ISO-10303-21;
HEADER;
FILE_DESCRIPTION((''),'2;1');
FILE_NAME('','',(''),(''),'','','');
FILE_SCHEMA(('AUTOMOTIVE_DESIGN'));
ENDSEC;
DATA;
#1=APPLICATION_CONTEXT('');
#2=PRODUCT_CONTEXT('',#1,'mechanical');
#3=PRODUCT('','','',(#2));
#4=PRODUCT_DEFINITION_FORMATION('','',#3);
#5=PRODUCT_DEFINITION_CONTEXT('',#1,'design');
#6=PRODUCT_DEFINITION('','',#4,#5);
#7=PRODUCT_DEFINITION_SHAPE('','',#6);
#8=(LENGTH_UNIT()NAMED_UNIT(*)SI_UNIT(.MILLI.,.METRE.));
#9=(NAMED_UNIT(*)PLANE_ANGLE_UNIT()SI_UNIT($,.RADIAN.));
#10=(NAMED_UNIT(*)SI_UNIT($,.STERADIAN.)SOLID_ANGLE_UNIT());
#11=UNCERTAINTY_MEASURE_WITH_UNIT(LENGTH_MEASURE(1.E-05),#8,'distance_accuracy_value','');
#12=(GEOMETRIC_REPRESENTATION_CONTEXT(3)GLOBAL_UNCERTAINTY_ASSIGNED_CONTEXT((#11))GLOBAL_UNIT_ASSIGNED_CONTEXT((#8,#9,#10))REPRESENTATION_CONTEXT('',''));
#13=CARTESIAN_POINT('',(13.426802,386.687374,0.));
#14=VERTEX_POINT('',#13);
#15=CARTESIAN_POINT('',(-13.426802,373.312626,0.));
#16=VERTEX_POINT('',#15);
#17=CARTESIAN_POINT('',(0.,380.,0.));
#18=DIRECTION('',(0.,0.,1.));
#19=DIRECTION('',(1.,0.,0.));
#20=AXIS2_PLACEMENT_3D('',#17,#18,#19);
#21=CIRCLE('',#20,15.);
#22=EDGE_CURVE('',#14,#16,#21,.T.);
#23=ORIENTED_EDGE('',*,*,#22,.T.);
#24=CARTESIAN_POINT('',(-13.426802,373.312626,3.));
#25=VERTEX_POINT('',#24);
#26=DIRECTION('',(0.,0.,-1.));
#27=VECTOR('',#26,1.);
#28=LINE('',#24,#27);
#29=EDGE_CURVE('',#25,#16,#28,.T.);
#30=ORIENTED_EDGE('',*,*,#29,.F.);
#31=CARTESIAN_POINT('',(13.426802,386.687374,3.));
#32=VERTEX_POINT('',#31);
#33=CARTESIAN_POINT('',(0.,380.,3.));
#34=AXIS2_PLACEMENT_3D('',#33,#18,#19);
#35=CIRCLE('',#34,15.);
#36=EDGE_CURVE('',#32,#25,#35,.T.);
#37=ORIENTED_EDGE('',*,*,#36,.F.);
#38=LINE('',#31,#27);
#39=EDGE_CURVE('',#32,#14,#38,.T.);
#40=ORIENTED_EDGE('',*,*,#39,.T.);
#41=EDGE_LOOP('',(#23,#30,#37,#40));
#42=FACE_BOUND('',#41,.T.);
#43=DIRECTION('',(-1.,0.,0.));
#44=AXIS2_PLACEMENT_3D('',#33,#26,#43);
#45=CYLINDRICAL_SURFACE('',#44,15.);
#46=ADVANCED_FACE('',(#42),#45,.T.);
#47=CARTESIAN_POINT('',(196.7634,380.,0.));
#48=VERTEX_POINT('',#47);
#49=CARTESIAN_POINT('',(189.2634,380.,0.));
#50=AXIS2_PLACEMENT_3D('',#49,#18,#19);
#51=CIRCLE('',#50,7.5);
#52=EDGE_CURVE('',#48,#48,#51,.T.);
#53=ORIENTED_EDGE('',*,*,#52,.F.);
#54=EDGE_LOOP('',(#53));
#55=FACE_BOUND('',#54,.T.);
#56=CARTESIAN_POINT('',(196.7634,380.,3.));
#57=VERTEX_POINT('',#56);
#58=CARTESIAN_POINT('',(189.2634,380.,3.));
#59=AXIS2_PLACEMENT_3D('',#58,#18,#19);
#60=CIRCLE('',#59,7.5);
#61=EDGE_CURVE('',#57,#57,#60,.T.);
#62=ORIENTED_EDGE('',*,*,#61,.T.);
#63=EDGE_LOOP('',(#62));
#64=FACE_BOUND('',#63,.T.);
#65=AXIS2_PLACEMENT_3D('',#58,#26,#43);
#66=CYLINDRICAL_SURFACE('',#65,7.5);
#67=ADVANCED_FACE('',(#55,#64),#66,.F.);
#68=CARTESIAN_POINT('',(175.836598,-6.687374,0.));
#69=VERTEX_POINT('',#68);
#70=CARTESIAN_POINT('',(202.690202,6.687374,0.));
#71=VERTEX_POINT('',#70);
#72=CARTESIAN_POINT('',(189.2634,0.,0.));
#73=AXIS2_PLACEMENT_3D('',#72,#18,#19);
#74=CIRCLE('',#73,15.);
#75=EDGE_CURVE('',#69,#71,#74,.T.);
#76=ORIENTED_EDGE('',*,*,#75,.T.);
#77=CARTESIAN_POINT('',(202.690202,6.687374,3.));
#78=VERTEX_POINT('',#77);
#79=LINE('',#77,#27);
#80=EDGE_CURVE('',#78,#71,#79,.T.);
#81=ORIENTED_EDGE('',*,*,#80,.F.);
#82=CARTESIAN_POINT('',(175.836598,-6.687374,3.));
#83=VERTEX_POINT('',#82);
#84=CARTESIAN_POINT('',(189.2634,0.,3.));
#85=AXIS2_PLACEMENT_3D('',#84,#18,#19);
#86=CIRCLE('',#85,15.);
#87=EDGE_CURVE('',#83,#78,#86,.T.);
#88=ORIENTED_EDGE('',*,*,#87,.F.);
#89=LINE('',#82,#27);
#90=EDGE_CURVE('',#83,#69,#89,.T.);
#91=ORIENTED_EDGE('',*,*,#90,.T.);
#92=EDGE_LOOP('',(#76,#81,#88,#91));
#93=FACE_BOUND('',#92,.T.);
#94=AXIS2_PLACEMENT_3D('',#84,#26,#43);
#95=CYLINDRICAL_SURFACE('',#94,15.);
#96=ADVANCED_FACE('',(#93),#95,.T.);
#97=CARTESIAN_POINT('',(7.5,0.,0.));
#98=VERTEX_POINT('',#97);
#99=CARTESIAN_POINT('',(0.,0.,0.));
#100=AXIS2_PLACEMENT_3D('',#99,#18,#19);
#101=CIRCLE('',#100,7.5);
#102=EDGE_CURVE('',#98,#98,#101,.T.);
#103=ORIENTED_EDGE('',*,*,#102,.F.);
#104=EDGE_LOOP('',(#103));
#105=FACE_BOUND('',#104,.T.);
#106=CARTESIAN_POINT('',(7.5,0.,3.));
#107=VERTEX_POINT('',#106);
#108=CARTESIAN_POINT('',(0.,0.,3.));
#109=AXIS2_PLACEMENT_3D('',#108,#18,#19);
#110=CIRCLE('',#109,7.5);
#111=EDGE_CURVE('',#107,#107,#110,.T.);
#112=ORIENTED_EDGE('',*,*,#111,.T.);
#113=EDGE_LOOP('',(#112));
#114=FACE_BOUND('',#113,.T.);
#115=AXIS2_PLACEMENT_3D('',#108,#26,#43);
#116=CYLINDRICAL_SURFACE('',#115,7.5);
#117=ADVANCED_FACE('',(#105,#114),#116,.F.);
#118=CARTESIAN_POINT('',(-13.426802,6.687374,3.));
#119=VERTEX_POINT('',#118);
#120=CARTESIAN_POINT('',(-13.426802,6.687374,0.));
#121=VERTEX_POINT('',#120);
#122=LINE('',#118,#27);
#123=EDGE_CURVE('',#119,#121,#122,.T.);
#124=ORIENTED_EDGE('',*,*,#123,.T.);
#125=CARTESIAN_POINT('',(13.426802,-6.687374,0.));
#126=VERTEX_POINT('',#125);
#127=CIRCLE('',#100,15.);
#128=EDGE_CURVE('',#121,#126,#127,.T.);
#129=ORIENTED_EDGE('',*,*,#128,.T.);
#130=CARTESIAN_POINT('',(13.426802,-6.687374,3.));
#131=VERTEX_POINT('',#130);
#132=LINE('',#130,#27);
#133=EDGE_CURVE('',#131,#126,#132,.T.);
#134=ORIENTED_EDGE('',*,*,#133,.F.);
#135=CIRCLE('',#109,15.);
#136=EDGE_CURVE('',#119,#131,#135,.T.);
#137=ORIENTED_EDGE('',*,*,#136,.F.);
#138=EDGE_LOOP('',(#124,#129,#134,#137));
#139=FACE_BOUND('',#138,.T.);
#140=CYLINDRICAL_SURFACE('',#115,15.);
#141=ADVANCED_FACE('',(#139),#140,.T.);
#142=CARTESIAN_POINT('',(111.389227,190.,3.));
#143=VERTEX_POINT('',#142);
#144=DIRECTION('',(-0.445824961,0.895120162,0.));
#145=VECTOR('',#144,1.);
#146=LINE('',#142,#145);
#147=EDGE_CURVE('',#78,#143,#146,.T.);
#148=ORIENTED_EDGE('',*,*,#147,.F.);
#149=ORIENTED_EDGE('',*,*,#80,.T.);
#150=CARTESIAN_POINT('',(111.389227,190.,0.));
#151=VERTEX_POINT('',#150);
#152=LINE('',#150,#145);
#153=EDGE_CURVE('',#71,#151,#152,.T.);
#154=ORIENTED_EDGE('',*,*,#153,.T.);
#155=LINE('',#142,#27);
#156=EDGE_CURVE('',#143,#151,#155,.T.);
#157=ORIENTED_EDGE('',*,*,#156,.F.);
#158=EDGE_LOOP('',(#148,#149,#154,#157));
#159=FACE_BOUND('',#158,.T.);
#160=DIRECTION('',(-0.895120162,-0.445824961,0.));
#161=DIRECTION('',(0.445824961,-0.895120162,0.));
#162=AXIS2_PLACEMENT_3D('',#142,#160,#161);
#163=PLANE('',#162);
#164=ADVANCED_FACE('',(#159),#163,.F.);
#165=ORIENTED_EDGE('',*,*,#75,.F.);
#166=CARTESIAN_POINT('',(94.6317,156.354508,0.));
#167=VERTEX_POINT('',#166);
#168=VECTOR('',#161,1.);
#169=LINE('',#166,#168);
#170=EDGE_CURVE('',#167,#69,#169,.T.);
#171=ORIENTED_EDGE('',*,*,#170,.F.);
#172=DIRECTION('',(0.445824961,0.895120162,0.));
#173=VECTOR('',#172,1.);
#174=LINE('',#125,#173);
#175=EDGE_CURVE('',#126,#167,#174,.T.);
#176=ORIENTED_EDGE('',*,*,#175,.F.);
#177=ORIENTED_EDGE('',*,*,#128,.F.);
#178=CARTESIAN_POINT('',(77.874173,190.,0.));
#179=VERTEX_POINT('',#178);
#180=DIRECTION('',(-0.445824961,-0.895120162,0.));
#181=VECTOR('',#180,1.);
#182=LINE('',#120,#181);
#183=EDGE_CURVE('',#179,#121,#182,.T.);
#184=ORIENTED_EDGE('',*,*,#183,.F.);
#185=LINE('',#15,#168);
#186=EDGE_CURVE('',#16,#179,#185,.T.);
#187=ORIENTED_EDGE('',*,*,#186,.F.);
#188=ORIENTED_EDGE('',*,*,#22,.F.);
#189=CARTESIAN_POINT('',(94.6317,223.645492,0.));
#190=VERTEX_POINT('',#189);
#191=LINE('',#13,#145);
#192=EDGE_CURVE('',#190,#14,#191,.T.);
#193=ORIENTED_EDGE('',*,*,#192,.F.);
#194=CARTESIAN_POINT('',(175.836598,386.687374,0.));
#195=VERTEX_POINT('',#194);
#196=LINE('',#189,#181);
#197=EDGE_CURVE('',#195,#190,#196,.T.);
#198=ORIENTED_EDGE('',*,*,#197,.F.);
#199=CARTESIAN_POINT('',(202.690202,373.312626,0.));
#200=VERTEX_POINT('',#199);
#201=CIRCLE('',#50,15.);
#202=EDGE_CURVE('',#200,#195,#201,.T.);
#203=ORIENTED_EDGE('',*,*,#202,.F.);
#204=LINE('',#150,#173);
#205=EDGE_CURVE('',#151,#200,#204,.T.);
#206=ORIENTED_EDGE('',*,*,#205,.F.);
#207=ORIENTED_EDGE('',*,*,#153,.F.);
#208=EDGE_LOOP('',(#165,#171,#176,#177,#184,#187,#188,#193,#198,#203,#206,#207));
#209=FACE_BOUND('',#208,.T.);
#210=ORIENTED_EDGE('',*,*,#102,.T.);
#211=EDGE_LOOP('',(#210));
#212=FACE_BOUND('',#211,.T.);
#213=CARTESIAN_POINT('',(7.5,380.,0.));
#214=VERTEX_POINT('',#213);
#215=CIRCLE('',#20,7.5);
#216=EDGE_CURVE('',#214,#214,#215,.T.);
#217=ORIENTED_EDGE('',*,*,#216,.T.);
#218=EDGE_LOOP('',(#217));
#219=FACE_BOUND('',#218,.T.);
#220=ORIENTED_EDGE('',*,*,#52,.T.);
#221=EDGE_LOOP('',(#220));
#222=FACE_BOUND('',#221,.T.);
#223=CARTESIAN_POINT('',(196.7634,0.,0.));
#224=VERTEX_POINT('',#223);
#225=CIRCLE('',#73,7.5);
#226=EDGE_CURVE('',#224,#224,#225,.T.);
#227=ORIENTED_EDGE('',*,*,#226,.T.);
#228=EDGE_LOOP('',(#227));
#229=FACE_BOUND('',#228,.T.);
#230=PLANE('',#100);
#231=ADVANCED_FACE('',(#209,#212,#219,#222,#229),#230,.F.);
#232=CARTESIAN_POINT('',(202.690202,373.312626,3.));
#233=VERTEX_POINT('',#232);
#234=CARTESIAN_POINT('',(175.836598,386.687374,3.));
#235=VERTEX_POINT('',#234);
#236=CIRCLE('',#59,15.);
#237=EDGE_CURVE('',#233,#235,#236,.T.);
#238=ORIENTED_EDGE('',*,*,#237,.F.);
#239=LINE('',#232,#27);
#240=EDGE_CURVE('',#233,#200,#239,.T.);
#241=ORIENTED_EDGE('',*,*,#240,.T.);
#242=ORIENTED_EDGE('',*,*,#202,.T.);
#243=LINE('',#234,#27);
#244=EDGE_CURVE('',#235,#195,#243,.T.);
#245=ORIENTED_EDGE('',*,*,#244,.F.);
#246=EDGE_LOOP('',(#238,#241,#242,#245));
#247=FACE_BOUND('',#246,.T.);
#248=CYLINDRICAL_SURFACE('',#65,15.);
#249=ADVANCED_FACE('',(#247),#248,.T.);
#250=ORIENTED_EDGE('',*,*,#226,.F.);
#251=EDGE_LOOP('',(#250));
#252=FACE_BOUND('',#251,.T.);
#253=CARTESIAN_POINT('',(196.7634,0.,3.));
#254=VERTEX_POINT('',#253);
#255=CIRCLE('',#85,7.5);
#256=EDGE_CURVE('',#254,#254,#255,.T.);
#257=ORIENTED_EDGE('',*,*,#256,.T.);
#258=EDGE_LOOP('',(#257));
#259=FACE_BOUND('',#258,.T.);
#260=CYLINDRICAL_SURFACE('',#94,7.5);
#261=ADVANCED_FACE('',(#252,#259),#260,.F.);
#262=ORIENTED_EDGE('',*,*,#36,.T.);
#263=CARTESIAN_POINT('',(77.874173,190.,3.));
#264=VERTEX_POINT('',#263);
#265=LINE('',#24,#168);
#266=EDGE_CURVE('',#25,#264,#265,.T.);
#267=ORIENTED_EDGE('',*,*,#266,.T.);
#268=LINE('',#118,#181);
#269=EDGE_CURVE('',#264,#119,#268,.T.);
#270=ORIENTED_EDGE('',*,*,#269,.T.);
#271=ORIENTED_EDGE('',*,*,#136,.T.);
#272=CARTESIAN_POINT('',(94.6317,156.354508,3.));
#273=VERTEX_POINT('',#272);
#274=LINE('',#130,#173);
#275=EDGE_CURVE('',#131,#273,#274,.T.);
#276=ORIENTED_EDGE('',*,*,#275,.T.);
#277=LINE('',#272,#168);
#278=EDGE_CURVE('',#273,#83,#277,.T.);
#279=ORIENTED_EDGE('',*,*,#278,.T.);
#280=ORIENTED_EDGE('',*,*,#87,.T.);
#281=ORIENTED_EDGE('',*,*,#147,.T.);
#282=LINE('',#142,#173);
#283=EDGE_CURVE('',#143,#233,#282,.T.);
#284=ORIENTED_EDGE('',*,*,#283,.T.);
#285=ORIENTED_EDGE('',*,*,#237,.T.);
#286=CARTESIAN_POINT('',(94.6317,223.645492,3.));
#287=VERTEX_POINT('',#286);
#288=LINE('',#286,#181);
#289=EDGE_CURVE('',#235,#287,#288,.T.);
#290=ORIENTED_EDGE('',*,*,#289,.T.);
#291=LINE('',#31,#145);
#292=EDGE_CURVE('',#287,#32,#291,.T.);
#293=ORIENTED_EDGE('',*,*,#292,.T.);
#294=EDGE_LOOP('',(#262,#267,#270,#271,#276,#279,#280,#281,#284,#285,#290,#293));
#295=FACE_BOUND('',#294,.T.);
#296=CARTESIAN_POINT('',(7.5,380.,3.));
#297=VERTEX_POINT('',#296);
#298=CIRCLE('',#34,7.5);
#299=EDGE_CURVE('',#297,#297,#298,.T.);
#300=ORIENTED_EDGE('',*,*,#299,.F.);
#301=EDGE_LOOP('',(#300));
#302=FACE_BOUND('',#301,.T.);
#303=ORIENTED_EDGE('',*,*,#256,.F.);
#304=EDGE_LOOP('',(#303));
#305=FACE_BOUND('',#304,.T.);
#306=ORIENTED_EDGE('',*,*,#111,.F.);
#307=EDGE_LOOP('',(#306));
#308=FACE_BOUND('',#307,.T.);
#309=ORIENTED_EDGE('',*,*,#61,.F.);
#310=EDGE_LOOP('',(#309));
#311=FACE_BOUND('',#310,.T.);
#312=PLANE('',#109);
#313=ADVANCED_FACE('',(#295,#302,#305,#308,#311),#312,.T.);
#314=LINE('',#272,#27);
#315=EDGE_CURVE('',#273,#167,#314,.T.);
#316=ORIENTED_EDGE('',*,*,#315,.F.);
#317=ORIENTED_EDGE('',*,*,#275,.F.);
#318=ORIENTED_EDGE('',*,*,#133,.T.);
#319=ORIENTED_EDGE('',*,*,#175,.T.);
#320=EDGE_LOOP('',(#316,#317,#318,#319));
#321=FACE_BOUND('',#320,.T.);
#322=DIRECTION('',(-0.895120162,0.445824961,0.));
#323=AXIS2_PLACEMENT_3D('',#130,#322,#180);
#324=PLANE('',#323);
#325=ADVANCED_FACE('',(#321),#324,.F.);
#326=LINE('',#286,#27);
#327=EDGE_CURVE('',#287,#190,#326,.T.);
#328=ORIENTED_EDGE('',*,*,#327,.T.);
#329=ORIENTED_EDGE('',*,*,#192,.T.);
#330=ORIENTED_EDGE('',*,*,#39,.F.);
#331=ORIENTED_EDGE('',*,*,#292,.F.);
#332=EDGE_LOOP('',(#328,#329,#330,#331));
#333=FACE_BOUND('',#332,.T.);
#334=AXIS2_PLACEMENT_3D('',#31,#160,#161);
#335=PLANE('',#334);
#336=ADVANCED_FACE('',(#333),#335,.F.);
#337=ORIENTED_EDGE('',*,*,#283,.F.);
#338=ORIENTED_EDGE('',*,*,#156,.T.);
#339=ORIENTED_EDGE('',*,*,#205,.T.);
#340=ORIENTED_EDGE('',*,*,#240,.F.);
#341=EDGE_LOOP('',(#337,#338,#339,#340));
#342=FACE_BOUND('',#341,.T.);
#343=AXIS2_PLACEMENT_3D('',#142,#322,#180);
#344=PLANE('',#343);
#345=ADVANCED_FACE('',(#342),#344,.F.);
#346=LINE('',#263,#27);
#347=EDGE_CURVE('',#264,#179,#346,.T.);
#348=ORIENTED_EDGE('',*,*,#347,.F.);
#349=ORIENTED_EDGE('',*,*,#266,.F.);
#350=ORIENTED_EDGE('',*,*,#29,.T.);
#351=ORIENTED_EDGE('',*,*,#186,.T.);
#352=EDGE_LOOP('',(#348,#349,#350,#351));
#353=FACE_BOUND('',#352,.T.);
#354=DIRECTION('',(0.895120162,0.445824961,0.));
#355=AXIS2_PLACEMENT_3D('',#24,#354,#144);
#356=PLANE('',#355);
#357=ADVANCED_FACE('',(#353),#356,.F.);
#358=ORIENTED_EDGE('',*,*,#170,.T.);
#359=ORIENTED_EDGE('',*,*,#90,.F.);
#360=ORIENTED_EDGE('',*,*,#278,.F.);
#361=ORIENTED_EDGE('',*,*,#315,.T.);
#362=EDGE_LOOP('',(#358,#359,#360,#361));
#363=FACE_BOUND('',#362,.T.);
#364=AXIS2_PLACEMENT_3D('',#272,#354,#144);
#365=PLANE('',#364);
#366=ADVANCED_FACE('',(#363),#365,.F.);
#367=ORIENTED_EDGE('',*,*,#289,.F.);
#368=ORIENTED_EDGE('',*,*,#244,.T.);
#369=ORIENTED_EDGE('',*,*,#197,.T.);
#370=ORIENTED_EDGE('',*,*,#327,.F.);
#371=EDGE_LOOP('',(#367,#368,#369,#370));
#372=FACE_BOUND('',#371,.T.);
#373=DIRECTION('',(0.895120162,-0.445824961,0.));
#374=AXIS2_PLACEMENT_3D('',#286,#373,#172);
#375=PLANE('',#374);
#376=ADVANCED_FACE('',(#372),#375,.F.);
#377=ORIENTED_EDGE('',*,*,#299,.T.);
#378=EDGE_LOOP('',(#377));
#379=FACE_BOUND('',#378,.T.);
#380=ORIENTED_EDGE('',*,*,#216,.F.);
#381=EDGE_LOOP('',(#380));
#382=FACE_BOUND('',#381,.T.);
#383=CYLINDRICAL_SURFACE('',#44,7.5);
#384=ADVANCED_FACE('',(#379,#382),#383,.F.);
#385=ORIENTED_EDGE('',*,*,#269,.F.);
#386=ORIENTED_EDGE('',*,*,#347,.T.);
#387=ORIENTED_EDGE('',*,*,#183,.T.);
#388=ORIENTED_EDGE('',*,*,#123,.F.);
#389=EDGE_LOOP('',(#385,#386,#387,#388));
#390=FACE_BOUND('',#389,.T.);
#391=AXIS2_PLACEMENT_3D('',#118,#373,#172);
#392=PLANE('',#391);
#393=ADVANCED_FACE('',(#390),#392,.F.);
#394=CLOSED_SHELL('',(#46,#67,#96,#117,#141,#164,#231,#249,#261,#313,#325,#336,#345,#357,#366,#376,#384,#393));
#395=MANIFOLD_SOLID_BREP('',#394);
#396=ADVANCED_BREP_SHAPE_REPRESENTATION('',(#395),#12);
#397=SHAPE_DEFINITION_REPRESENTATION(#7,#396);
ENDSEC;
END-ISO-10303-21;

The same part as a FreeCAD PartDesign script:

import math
import FreeCAD as App
import Part
import Sketcher
from FreeCAD import Vector

doc = App.newDocument("Part")
params = doc.addObject("Spreadsheet::Sheet", "Params")
for row, (alias, value) in enumerate([
    ("sketch1_diameter", "15 mm"),
    ("sketch1_radius", "15 mm"),
    ("pad1_length", "3 mm"),
], start=1):
    params.set(f"A{row}", alias)
    params.set(f"B{row}", "=" + value)
    params.setAlias(f"B{row}", alias)

body = doc.addObject("PartDesign::Body", "Body")

# Sketch on XY plane
sketch1 = doc.addObject("Sketcher::SketchObject", "Sketch")
body.addObject(sketch1)
sketch1.AttachmentSupport = (doc.XY_Plane, [""])
sketch1.MapMode = "FlatFace"
sketch1.addGeometry([
    Part.LineSegment(Vector(78, 190, 0), Vector(-13, 7, 0)),  # 0
    Part.ArcOfCircle(Part.Circle(Vector(0, 0, 0), Vector(0, 0, 1), 15), math.radians(154), math.radians(334)),  # 1
    Part.LineSegment(Vector(13, -7, 0), Vector(95, 156, 0)),  # 2
    Part.LineSegment(Vector(95, 156, 0), Vector(176, -7, 0)),  # 3
    Part.ArcOfCircle(Part.Circle(Vector(189, 0, 0), Vector(0, 0, 1), 15), math.radians(-154), math.radians(26)),  # 4
    Part.LineSegment(Vector(203, 7, 0), Vector(111, 190, 0)),  # 5
    Part.LineSegment(Vector(111, 190, 0), Vector(203, 373, 0)),  # 6
    Part.ArcOfCircle(Part.Circle(Vector(189, 380, 0), Vector(0, 0, 1), 15), math.radians(-26), math.radians(154)),  # 7
    Part.LineSegment(Vector(176, 387, 0), Vector(95, 224, 0)),  # 8
    Part.LineSegment(Vector(95, 224, 0), Vector(13, 387, 0)),  # 9
    Part.ArcOfCircle(Part.Circle(Vector(0, 380, 0), Vector(0, 0, 1), 15), math.radians(26), math.radians(206)),  # 10
    Part.LineSegment(Vector(-13, 373, 0), Vector(78, 190, 0)),  # 11
    Part.Circle(Vector(189, 0, 0), Vector(0, 0, 1), 8),  # 12
    Part.Circle(Vector(0, 0, 0), Vector(0, 0, 1), 8),  # 13
    Part.Circle(Vector(189, 380, 0), Vector(0, 0, 1), 8),  # 14
    Part.Circle(Vector(0, 380, 0), Vector(0, 0, 1), 8),  # 15
], False)
sketch1.addConstraint([
    Sketcher.Constraint("Tangent", 0, 2, 1, 1),
    Sketcher.Constraint("Tangent", 1, 2, 2, 1),
    Sketcher.Constraint("Coincident", 2, 2, 3, 1),
    Sketcher.Constraint("Tangent", 3, 2, 4, 1),
    Sketcher.Constraint("Tangent", 4, 2, 5, 1),
    Sketcher.Constraint("Coincident", 5, 2, 6, 1),
    Sketcher.Constraint("Tangent", 6, 2, 7, 1),
    Sketcher.Constraint("Tangent", 7, 2, 8, 1),
    Sketcher.Constraint("Coincident", 8, 2, 9, 1),
    Sketcher.Constraint("Tangent", 9, 2, 10, 1),
    Sketcher.Constraint("Tangent", 10, 2, 11, 1),
    Sketcher.Constraint("Coincident", 11, 2, 0, 1),
    Sketcher.Constraint("Coincident", 1, 3, -1, 1),
    Sketcher.Constraint("Coincident", 13, 3, -1, 1),
    Sketcher.Constraint("Coincident", 12, 3, 4, 3),
    Sketcher.Constraint("Coincident", 14, 3, 7, 3),
    Sketcher.Constraint("Coincident", 15, 3, 10, 3),
    Sketcher.Constraint("Equal", 1, 4),
    Sketcher.Constraint("Equal", 4, 7),
    Sketcher.Constraint("Equal", 7, 10),
    Sketcher.Constraint("Equal", 12, 13),
    Sketcher.Constraint("Equal", 13, 14),
    Sketcher.Constraint("Equal", 14, 15),
    Sketcher.Constraint("PointOnObject", 4, 3, -1),
    Sketcher.Constraint("PointOnObject", 10, 3, -2),
    Sketcher.Constraint("Parallel", 0, 2),
    Sketcher.Constraint("Parallel", 3, 5),
    Sketcher.Constraint("Parallel", 2, 6),
    Sketcher.Constraint("Parallel", 6, 8),
    Sketcher.Constraint("Parallel", 5, 9),
    Sketcher.Constraint("Parallel", 9, 11),
    Sketcher.Constraint("Horizontal", 7, 3, 10, 3),
    Sketcher.Constraint("Horizontal", 1, 2, 3, 2),
    Sketcher.Constraint("Horizontal", 5, 2, 11, 2),
    Sketcher.Constraint("Diameter", 12, 15.0),
    Sketcher.Constraint("Radius", 1, 15.0),
    Sketcher.Constraint("DistanceY", -1, 1, 7, 3, 380.0),
    Sketcher.Constraint("DistanceX", -1, 1, 4, 3, 189.2634),
    Sketcher.Constraint("Distance", 0, 204.791081),
])
sketch1.setExpression("Constraints[34]", "Params.sketch1_diameter")
sketch1.setExpression("Constraints[35]", "Params.sketch1_radius")
pad1 = doc.addObject("PartDesign::Pad", "Pad")
body.addObject(pad1)
pad1.Profile = sketch1
pad1.setExpression("Length", "Params.pad1_length")

doc.recompute()
